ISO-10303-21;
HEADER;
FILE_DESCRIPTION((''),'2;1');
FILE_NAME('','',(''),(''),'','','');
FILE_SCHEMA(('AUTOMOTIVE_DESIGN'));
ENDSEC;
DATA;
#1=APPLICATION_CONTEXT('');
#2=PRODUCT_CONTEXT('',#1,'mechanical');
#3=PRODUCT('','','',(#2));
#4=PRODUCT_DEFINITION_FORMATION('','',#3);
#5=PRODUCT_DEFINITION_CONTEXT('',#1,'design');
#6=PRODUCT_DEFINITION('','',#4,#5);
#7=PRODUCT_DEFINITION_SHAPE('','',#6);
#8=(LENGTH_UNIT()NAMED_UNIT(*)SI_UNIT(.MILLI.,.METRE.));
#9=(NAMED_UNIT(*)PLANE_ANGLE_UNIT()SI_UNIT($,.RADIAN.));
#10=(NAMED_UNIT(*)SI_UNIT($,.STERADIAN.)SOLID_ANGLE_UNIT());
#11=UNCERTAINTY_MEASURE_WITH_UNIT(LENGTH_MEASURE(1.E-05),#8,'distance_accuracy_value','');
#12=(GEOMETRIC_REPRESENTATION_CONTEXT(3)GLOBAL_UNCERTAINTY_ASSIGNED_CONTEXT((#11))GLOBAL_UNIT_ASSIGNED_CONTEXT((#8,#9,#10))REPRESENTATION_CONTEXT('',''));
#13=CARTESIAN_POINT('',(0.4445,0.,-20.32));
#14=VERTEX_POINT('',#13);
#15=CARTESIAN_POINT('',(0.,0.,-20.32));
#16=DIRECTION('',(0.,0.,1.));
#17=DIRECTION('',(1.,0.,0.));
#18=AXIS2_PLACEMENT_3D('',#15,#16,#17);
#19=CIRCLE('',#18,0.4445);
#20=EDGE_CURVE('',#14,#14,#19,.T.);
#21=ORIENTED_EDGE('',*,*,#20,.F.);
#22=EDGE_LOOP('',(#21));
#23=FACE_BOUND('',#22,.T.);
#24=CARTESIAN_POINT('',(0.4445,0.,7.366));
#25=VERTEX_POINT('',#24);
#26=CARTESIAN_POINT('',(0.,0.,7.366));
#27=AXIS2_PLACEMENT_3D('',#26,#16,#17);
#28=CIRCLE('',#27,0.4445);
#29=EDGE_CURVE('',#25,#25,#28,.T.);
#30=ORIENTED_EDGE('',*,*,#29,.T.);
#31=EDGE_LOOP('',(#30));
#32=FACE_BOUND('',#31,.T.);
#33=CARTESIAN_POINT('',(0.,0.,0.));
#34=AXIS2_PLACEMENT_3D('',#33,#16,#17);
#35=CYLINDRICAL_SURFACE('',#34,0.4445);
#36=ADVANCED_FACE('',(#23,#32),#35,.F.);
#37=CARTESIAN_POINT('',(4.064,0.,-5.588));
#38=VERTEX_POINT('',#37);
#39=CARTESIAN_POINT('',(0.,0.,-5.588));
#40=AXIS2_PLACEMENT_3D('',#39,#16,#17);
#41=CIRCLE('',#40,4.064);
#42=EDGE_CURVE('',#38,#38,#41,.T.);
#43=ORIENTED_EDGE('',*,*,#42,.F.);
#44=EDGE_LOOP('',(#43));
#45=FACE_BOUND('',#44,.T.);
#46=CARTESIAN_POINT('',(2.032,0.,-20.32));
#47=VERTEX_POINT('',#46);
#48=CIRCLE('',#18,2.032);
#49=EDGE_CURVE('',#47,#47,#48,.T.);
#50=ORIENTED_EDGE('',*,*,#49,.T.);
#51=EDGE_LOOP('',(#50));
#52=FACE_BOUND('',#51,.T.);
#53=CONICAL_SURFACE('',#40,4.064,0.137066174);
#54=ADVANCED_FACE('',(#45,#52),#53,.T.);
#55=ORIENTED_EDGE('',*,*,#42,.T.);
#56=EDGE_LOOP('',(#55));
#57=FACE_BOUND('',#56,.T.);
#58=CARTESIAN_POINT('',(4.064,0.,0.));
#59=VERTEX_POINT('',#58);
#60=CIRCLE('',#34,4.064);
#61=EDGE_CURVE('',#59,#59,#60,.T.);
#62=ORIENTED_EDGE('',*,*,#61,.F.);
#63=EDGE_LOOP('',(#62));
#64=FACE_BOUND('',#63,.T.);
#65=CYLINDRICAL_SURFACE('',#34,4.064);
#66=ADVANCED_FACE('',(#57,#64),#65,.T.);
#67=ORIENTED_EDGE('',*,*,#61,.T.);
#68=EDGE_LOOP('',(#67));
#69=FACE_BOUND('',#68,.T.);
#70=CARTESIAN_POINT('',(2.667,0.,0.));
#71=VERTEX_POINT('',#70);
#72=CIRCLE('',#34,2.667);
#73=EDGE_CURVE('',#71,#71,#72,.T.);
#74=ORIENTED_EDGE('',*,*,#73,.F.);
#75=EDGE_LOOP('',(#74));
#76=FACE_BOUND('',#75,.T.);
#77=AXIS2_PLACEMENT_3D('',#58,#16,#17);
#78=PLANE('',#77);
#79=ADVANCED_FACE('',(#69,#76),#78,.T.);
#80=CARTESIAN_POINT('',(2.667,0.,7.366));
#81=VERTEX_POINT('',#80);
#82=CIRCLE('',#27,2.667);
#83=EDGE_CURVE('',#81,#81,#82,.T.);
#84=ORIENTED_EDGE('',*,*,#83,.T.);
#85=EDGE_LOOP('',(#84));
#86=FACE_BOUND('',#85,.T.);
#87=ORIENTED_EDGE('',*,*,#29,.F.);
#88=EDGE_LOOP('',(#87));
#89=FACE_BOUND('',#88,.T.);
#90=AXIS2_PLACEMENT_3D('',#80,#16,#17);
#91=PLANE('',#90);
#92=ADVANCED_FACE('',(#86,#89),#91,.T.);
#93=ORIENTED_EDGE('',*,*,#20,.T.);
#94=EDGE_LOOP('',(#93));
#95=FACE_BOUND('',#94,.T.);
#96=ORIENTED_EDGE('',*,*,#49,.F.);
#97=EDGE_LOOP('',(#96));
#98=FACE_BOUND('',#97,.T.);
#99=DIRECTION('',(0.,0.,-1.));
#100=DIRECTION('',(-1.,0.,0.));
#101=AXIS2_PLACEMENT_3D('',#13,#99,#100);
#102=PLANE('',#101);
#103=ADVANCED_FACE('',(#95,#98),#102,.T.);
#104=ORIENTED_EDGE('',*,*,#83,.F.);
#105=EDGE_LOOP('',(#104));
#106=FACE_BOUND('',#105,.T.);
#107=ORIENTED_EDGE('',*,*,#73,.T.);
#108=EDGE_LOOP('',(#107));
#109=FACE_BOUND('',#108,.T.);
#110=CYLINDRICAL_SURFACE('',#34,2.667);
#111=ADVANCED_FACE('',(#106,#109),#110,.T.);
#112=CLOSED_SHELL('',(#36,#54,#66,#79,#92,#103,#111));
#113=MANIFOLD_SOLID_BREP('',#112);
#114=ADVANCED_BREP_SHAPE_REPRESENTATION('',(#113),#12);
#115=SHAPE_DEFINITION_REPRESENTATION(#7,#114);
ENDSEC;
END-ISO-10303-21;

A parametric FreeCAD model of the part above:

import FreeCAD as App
import Part
import Sketcher
Q = App.Units.Quantity

doc = App.newDocument("Part")
body = doc.addObject("PartDesign::Body", "Body")

# Sketch on XZ plane
sketch1 = doc.addObject("Sketcher::SketchObject", "Sketch")
body.addObject(sketch1)
sketch1.AttachmentSupport = (doc.XZ_Plane, [""])
sketch1.MapMode = "FlatFace"
sketch1.addGeometry([
    Part.LineSegment(App.Vector(0.4, -20.3, 0), App.Vector(0.4, 7.4, 0)),  # 0
    Part.LineSegment(App.Vector(0.4, 7.4, 0), App.Vector(2.7, 7.4, 0)),  # 1
    Part.LineSegment(App.Vector(2.7, 7.4, 0), App.Vector(2.7, 0, 0)),  # 2
    Part.LineSegment(App.Vector(2.7, 0, 0), App.Vector(4.1, 0, 0)),  # 3
    Part.LineSegment(App.Vector(4.1, 0, 0), App.Vector(4.1, -5.6, 0)),  # 4
    Part.LineSegment(App.Vector(4.1, -5.6, 0), App.Vector(2, -20.3, 0)),  # 5
    Part.LineSegment(App.Vector(2, -20.3, 0), App.Vector(0.4, -20.3, 0)),  # 6
], False)
sketch1.addConstraint([
    Sketcher.Constraint("Coincident", 0, 2, 1, 1),
    Sketcher.Constraint("Coincident", 1, 2, 2, 1),
    Sketcher.Constraint("Coincident", 2, 2, 3, 1),
    Sketcher.Constraint("Coincident", 3, 2, 4, 1),
    Sketcher.Constraint("Coincident", 4, 2, 5, 1),
    Sketcher.Constraint("Coincident", 5, 2, 6, 1),
    Sketcher.Constraint("Coincident", 6, 2, 0, 1),
    Sketcher.Constraint("Vertical", 0),
    Sketcher.Constraint("Horizontal", 1),
    Sketcher.Constraint("Vertical", 2),
    Sketcher.Constraint("Horizontal", 3),
    Sketcher.Constraint("Vertical", 4),
    Sketcher.Constraint("Horizontal", 6),
    Sketcher.Constraint("PointOnObject", 2, 2, -1),
    Sketcher.Constraint("DistanceY", 0, 1, 0, 2, Q("1.09 in")),
    Sketcher.Constraint("DistanceY", 2, 2, 2, 1, Q("0.29 in")),
    Sketcher.Constraint("DistanceY", 4, 2, 4, 1, Q("0.22 in")),
    Sketcher.Constraint("DistanceX", 3, 1, 3, 2, Q("0.055 in")),
    Sketcher.Constraint("DistanceX", 6, 2, 6, 1, Q("0.0625 in")),
    Sketcher.Constraint("DistanceX", -1, 1, 3, 2, Q("0.16 in")),
    Sketcher.Constraint("DistanceX", -1, 1, 5, 2, Q("0.08 in")),
])
revolution = doc.addObject("PartDesign::Revolution", "Revolution")
body.addObject(revolution)
revolution.Profile = sketch1
revolution.ReferenceAxis = (sketch1, ["V_Axis"])
revolution.Angle = 360

doc.recompute()
